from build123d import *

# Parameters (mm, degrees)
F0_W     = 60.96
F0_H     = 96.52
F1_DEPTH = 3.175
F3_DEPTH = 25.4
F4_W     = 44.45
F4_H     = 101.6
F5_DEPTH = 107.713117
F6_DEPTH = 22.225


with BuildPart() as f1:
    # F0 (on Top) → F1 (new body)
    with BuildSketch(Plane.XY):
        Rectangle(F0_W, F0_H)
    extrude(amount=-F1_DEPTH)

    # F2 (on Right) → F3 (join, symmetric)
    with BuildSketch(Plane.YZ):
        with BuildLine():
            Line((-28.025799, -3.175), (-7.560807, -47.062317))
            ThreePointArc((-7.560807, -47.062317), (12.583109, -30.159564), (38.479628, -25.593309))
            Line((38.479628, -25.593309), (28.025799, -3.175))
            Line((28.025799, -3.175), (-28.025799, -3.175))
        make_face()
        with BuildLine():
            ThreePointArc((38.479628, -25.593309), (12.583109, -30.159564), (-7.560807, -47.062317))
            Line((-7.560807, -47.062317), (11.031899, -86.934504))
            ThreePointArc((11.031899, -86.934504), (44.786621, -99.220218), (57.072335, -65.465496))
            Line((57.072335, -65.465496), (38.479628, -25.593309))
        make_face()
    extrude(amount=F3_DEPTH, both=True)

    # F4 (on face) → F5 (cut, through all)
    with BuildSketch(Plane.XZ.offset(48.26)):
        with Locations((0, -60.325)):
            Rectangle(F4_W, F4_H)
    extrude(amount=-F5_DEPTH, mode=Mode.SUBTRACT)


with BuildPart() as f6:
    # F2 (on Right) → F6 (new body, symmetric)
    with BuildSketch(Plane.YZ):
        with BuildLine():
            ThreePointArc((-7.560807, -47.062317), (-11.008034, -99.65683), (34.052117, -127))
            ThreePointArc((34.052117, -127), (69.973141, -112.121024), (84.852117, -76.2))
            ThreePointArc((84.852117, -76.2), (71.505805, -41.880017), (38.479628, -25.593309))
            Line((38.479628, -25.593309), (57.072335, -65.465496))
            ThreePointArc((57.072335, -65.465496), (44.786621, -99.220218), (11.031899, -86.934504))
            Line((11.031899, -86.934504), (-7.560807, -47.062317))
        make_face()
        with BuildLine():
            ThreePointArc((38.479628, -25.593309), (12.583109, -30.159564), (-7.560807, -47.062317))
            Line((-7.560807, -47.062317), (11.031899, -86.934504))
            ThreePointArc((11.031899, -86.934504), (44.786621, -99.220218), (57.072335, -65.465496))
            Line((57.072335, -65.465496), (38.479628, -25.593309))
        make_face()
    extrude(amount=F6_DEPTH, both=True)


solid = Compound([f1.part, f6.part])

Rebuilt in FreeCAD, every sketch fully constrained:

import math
import FreeCAD as App
import Part
import Sketcher
Q = App.Units.Quantity


def add_polygon(sketch, points):
    """Adds a closed chain of lines whose ends are joined by coincident constraints."""
    first, n = sketch.GeometryCount, len(points)
    for a, b in zip(points, points[1:] + points[:1]):
        sketch.addGeometry(Part.LineSegment(App.Vector(*a, 0), App.Vector(*b, 0)), False)
    for i in range(n):
        sketch.addConstraint(Sketcher.Constraint("Coincident", first + i, 2, first + (i + 1) % n, 1))

doc = App.newDocument("Part")
body = doc.addObject("PartDesign::Body", "Body")

# Sketch on XY plane
sketch1 = doc.addObject("Sketcher::SketchObject", "Sketch")
body.addObject(sketch1)
sketch1.AttachmentSupport = (doc.XY_Plane, [""])
sketch1.MapMode = "FlatFace"
add_polygon(sketch1, [(-30.48, 48.26), (-30.48, -48.26), (30.48, -48.26), (30.48, 48.26)])  # lines 0-3
sketch1.addConstraint([
    Sketcher.Constraint("Vertical", 0),
    Sketcher.Constraint("Horizontal", 1),
    Sketcher.Constraint("Vertical", 2),
    Sketcher.Constraint("Horizontal", 3),
    Sketcher.Constraint("Symmetric", 0, 2, 2, 2, -1, 1),
    Sketcher.Constraint("DistanceX", 1, 1, 1, 2, Q("2.4 in")),
    Sketcher.Constraint("DistanceY", 0, 2, 0, 1, Q("3.8 in")),
])
pad1 = doc.addObject("PartDesign::Pad", "Pad")
body.addObject(pad1)
pad1.Profile = sketch1
pad1.Length = Q("0.125 in")
pad1.Reversed = True

# Sketch on YZ plane
sketch2 = doc.addObject("Sketcher::SketchObject", "Sketch001")
body.addObject(sketch2)
sketch2.AttachmentSupport = (doc.YZ_Plane, [""])
sketch2.MapMode = "FlatFace"
sketch2.addGeometry([
    Part.LineSegment(App.Vector(-28.025799, -3.175, 0), App.Vector(-7.560807, -47.062317, 0)),  # 0
    Part.LineSegment(App.Vector(-7.560807, -47.062317, 0), App.Vector(11.031899, -86.934504, 0)),  # 1
    Part.ArcOfCircle(Part.Circle(App.Vector(34.052117, -76.2, 0), App.Vector(0, 0, 1), 25.4), math.radians(-155), math.radians(25)),  # 2
    Part.LineSegment(App.Vector(57.072335, -65.465496, 0), App.Vector(38.479628, -25.593309, 0)),  # 3
    Part.LineSegment(App.Vector(38.479628, -25.593309, 0), App.Vector(28.025799, -3.175, 0)),  # 4
    Part.LineSegment(App.Vector(28.025799, -3.175, 0), App.Vector(-28.025799, -3.175, 0)),  # 5
], False)
sketch2.addConstraint([
    Sketcher.Constraint("Coincident", 0, 2, 1, 1),
    Sketcher.Constraint("Tangent", 1, 2, 2, 1),
    Sketcher.Constraint("Tangent", 2, 2, 3, 1),
    Sketcher.Constraint("Coincident", 3, 2, 4, 1),
    Sketcher.Constraint("Coincident", 4, 2, 5, 1),
    Sketcher.Constraint("Coincident", 5, 2, 0, 1),
    Sketcher.Constraint("Horizontal", 5),
    Sketcher.Constraint("Parallel", 0, 1),
    Sketcher.Constraint("Parallel", 1, 3),
    Sketcher.Constraint("Parallel", 3, 4),
    Sketcher.Constraint("Equal", 1, 3),
    Sketcher.Constraint("Radius", 2, Q("1 in")),
    Sketcher.Constraint("DistanceY", 2, 3, -1, 1, Q("3 in")),
    Sketcher.Constraint("Angle", 0, Q("-65 deg")),
    Sketcher.Constraint("DistanceY", 4, 2, -1, 1, Q("0.125 in")),
    Sketcher.Constraint("DistanceX", -1, 1, 1, 2, 11.031899),
    Sketcher.Constraint("Distance", 1, 43.994091),
])
pad2 = doc.addObject("PartDesign::Pad", "Pad001")
body.addObject(pad2)
pad2.Profile = sketch2
pad2.Length = Q("2 in")
pad2.Midplane = True

# Sketch on XZ plane
sketch3 = doc.addObject("Sketcher::SketchObject", "Sketch002")
body.addObject(sketch3)
sketch3.AttachmentSupport = (doc.XZ_Plane, [""])
sketch3.MapMode = "FlatFace"
sketch3.AttachmentOffset = App.Placement(App.Vector(0, 0, 1.9 * 25.4), App.Rotation())
add_polygon(sketch3, [(-22.225, -9.525), (-22.225, -111.125), (22.225, -111.125), (22.225, -9.525)])  # lines 0-3
sketch3.addConstraint([
    Sketcher.Constraint("Vertical", 0),
    Sketcher.Constraint("Horizontal", 1),
    Sketcher.Constraint("Vertical", 2),
    Sketcher.Constraint("Horizontal", 3),
    Sketcher.Constraint("DistanceY", 0, 2, 0, 1, Q("4 in")),
    Sketcher.Constraint("DistanceX", 1, 1, 1, 2, Q("1.75 in")),
    Sketcher.Constraint("DistanceX", 0, 2, -1, 1, Q("0.875 in")),
    Sketcher.Constraint("DistanceY", 0, 2, -1, 1, Q("4.375 in")),
])
pocket1 = doc.addObject("PartDesign::Pocket", "Pocket")
body.addObject(pocket1)
pocket1.Profile = sketch3
pocket1.Type = "ThroughAll"
body2 = doc.addObject("PartDesign::Body", "Body001")

# Sketch on YZ plane
sketch4 = doc.addObject("Sketcher::SketchObject", "Sketch003")
body2.addObject(sketch4)
sketch4.AttachmentSupport = (doc.getObject("YZ_Plane001"), [""])
sketch4.MapMode = "FlatFace"
sketch4.addGeometry([
    Part.ArcOfCircle(Part.Circle(App.Vector(34.052116, -76.200001, 0), App.Vector(0, 0, 1), 50.799999), math.radians(144.999999), math.radians(270.000001)),
    Part.ArcOfCircle(Part.Circle(App.Vector(34.052115, -76.199998, 0), App.Vector(0, 0, 1), 50.800002), math.radians(-89.999998), math.radians(-0.000002)),
    Part.ArcOfCircle(Part.Circle(App.Vector(34.052116, -76.200001, 0), App.Vector(0, 0, 1), 50.800001), math.radians(0.000001), math.radians(85)),
    Part.ArcOfCircle(Part.Circle(App.Vector(34.052116, -76.199998, 0), App.Vector(0, 0, 1), 50.799998), math.radians(85), math.radians(145.000001)),
], False)
sketch4.addConstraint([
    Sketcher.Constraint("Tangent", 0, 2, 1, 1),
    Sketcher.Constraint("Tangent", 1, 2, 2, 1),
    Sketcher.Constraint("Tangent", 2, 2, 3, 1),
    Sketcher.Constraint("Tangent", 3, 2, 0, 1),
    Sketcher.Constraint("Equal", 1, 2),
    Sketcher.Constraint("Horizontal", 2, 3, 1, 2),
    Sketcher.Constraint("Vertical", 3, 3, 0, 2),
    Sketcher.Constraint("Radius", 0, Q("2 in")),
    Sketcher.Constraint("DistanceY", 0, 3, -1, 1, Q("3 in")),
    Sketcher.Constraint("DistanceY", 2, 2, -1, 1, 25.593309),
    Sketcher.Constraint("DistanceY", 1, 3, 3, 2, 29.137681),
    Sketcher.Constraint("DistanceX", -1, 1, 0, 3, 34.052116),
])
pad3 = doc.addObject("PartDesign::Pad", "Pad002")
body2.addObject(pad3)
pad3.Profile = sketch4
pad3.Length = Q("1.75 in")
pad3.Midplane = True

doc.recompute()
